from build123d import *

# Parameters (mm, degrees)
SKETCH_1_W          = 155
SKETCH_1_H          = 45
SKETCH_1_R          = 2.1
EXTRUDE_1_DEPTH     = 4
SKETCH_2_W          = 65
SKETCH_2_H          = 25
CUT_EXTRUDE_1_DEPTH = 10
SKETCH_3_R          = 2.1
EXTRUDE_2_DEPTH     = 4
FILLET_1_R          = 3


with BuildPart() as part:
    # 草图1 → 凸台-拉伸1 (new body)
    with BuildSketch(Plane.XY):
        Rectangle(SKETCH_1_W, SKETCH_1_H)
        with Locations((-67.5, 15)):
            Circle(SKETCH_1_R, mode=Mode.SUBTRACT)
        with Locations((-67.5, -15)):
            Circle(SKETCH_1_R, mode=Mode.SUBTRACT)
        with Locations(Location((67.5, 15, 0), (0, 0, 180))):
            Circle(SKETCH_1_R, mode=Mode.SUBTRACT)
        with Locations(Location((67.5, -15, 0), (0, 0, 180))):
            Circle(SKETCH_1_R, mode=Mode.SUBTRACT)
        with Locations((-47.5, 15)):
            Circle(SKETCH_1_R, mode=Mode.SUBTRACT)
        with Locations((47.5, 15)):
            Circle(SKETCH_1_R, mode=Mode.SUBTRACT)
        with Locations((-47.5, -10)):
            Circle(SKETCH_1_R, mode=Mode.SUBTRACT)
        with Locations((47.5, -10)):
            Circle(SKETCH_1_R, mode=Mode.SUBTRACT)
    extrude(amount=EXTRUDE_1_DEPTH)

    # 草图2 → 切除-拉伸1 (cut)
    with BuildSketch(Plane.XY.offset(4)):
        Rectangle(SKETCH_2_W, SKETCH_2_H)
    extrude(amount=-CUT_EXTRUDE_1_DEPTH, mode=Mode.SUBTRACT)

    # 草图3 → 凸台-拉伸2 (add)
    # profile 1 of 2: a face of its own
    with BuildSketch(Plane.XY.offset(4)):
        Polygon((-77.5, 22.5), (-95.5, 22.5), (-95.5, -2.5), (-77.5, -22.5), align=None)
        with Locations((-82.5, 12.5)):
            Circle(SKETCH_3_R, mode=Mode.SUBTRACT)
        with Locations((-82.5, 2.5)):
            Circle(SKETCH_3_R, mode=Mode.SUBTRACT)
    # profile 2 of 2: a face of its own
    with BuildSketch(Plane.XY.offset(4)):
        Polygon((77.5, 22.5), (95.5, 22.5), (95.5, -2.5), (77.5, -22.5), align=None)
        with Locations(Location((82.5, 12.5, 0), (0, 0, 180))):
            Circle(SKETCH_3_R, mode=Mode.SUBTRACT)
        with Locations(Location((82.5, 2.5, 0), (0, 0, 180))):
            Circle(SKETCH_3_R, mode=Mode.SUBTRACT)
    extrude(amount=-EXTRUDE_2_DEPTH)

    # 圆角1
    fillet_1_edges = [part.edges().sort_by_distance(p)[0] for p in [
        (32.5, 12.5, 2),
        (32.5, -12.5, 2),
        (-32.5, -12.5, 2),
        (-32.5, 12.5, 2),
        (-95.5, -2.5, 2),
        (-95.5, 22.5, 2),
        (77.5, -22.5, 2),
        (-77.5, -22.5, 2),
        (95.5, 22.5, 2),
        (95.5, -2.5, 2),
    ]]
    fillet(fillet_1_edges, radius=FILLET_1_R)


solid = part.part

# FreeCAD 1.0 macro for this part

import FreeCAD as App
import Part
import Sketcher
from FreeCAD import Vector


def edges_at(feature, points):
    """Names of the edges that pass closest to the given points."""
    edges = feature.Shape.Edges
    near = lambda p: min(range(len(edges)), key=lambda i: edges[i].distToShape(Part.Vertex(*p))[0])
    return sorted({f"Edge{near(p) + 1}" for p in points})

doc = App.newDocument("Part")
body = doc.addObject("PartDesign::Body", "Body")

sketch1 = body.newObject("Sketcher::SketchObject", "Sketch")
sketch1.AttachmentSupport = (doc.getObject("XY_Plane"), [""])
sketch1.MapMode = "FlatFace"
sketch1.addGeometry(Part.LineSegment(Vector(-77.5, 22.5, 0), Vector(-77.5, -22.5, 0)), False)
sketch1.addGeometry(Part.LineSegment(Vector(-77.5, -22.5, 0), Vector(77.5, -22.5, 0)), False)
sketch1.addGeometry(Part.LineSegment(Vector(77.5, -22.5, 0), Vector(77.5, 22.5, 0)), False)
sketch1.addGeometry(Part.LineSegment(Vector(77.5, 22.5, 0), Vector(-77.5, 22.5, 0)), False)
sketch1.addGeometry(Part.Circle(Vector(-67.5, -15, 0), Vector(0, 0, 1), 2.1), False)
sketch1.addGeometry(Part.Circle(Vector(-47.5, -10, 0), Vector(0, 0, 1), 2.1), False)
sketch1.addGeometry(Part.Circle(Vector(67.5, -15, 0), Vector(0, 0, 1), 2.1), False)
sketch1.addGeometry(Part.Circle(Vector(47.5, -10, 0), Vector(0, 0, 1), 2.1), False)
sketch1.addGeometry(Part.Circle(Vector(-67.5, 15, 0), Vector(0, 0, 1), 2.1), False)
sketch1.addGeometry(Part.Circle(Vector(-47.5, 15, 0), Vector(0, 0, 1), 2.1), False)
sketch1.addGeometry(Part.Circle(Vector(47.5, 15, 0), Vector(0, 0, 1), 2.1), False)
sketch1.addGeometry(Part.Circle(Vector(67.5, 15, 0), Vector(0, 0, 1), 2.1), False)
sketch1.addConstraint(Sketcher.Constraint("Coincident", 0, 2, 1, 1))
sketch1.addConstraint(Sketcher.Constraint("Coincident", 1, 2, 2, 1))
sketch1.addConstraint(Sketcher.Constraint("Coincident", 2, 2, 3, 1))
sketch1.addConstraint(Sketcher.Constraint("Coincident", 3, 2, 0, 1))
sketch1.addConstraint(Sketcher.Constraint("Vertical", 0))
sketch1.addConstraint(Sketcher.Constraint("Horizontal", 1))
sketch1.addConstraint(Sketcher.Constraint("Vertical", 2))
sketch1.addConstraint(Sketcher.Constraint("Horizontal", 3))
sketch1.addConstraint(Sketcher.Constraint("Equal", 4, 5))
sketch1.addConstraint(Sketcher.Constraint("Equal", 5, 6))
sketch1.addConstraint(Sketcher.Constraint("Equal", 6, 7))
sketch1.addConstraint(Sketcher.Constraint("Equal", 7, 8))
sketch1.addConstraint(Sketcher.Constraint("Equal", 8, 9))
sketch1.addConstraint(Sketcher.Constraint("Equal", 9, 10))
sketch1.addConstraint(Sketcher.Constraint("Equal", 10, 11))
sketch1.addConstraint(Sketcher.Constraint("Symmetric", 6, 3, 8, 3, -1, 1))
sketch1.addConstraint(Sketcher.Constraint("Symmetric", 4, 3, 11, 3, -1, 1))
sketch1.addConstraint(Sketcher.Constraint("Symmetric", 0, 2, 2, 2, -1, 1))
sketch1.addConstraint(Sketcher.Constraint("Symmetric", 4, 3, 6, 3, -2))
sketch1.addConstraint(Sketcher.Constraint("Symmetric", 5, 3, 7, 3, -2))
sketch1.addConstraint(Sketcher.Constraint("Symmetric", 9, 3, 10, 3, -2))
sketch1.addConstraint(Sketcher.Constraint("Horizontal", 8, 3, 9, 3))
sketch1.addConstraint(Sketcher.Constraint("Vertical", 5, 3, 9, 3))
sketch1.addConstraint(Sketcher.Constraint("Diameter", 4, 4.2))
sketch1.addConstraint(Sketcher.Constraint("DistanceX", 1, 1, 1, 2, 155.0))
sketch1.addConstraint(Sketcher.Constraint("DistanceY", 0, 2, 0, 1, 45.0))
sketch1.addConstraint(Sketcher.Constraint("DistanceY", 4, 3, -1, 1, 15.0))
sketch1.addConstraint(Sketcher.Constraint("DistanceY", 5, 3, -1, 1, 10.0))
sketch1.addConstraint(Sketcher.Constraint("DistanceX", 4, 3, 5, 3, 20.0))
sketch1.addConstraint(Sketcher.Constraint("DistanceX", 5, 3, 6, 3, 115.0))
pad1 = body.newObject("PartDesign::Pad", "Pad")
pad1.Profile = sketch1
pad1.Length = 4

sketch2 = body.newObject("Sketcher::SketchObject", "Sketch001")
sketch2.AttachmentSupport = (doc.getObject("XY_Plane"), [""])
sketch2.MapMode = "FlatFace"
sketch2.AttachmentOffset = App.Placement(Vector(0, 0, 4), App.Rotation())
sketch2.addGeometry(Part.LineSegment(Vector(-32, 12, 0), Vector(-32, -12, 0)), False)
sketch2.addGeometry(Part.LineSegment(Vector(-32, -12, 0), Vector(32, -12, 0)), False)
sketch2.addGeometry(Part.LineSegment(Vector(32, -12, 0), Vector(32, 12, 0)), False)
sketch2.addGeometry(Part.LineSegment(Vector(32, 12, 0), Vector(-32, 12, 0)), False)
sketch2.addConstraint(Sketcher.Constraint("Coincident", 0, 2, 1, 1))
sketch2.addConstraint(Sketcher.Constraint("Coincident", 1, 2, 2, 1))
sketch2.addConstraint(Sketcher.Constraint("Coincident", 2, 2, 3, 1))
sketch2.addConstraint(Sketcher.Constraint("Coincident", 3, 2, 0, 1))
sketch2.addConstraint(Sketcher.Constraint("Vertical", 0))
sketch2.addConstraint(Sketcher.Constraint("Horizontal", 1))
sketch2.addConstraint(Sketcher.Constraint("Vertical", 2))
sketch2.addConstraint(Sketcher.Constraint("Horizontal", 3))
sketch2.addConstraint(Sketcher.Constraint("Symmetric", 0, 2, 2, 2, -1, 1))
sketch2.addConstraint(Sketcher.Constraint("DistanceX", 1, 1, 1, 2, 65.0))
sketch2.addConstraint(Sketcher.Constraint("DistanceY", 0, 2, 0, 1, 25.0))
pocket1 = body.newObject("PartDesign::Pocket", "Pocket")
pocket1.Profile = sketch2
pocket1.Length = 10

sketch3 = body.newObject("Sketcher::SketchObject", "Sketch002")
sketch3.AttachmentSupport = (doc.getObject("XY_Plane"), [""])
sketch3.MapMode = "FlatFace"
sketch3.AttachmentOffset = App.Placement(Vector(0, 0, 4), App.Rotation())
sketch3.addGeometry(Part.LineSegment(Vector(-77.5, 22.5, 0), Vector(-95.5, 22.5, 0)), False)
sketch3.addGeometry(Part.LineSegment(Vector(-95.5, 22.5, 0), Vector(-95.5, -2.5, 0)), False)
sketch3.addGeometry(Part.LineSegment(Vector(-95.5, -2.5, 0), Vector(-77.5, -22.5, 0)), False)
sketch3.addGeometry(Part.LineSegment(Vector(-77.5, -22.5, 0), Vector(-77.5, 22.5, 0)), False)
sketch3.addGeometry(Part.Circle(Vector(-82.5, 2.5, 0), Vector(0, 0, 1), 2.1), False)
sketch3.addGeometry(Part.Circle(Vector(-82.5, 12.5, 0), Vector(0, 0, 1), 2.1), False)
sketch3.addGeometry(Part.LineSegment(Vector(95.5, 22.5, 0), Vector(77.5, 22.5, 0)), False)
sketch3.addGeometry(Part.LineSegment(Vector(77.5, 22.5, 0), Vector(77.5, -22.5, 0)), False)
sketch3.addGeometry(Part.LineSegment(Vector(77.5, -22.5, 0), Vector(95.5, -2.5, 0)), False)
sketch3.addGeometry(Part.LineSegment(Vector(95.5, -2.5, 0), Vector(95.5, 22.5, 0)), False)
sketch3.addGeometry(Part.Circle(Vector(82.5, 2.5, 0), Vector(0, 0, 1), 2.1), False)
sketch3.addGeometry(Part.Circle(Vector(82.5, 12.5, 0), Vector(0, 0, 1), 2.1), False)
sketch3.addConstraint(Sketcher.Constraint("Coincident", 0, 2, 1, 1))
sketch3.addConstraint(Sketcher.Constraint("Coincident", 1, 2, 2, 1))
sketch3.addConstraint(Sketcher.Constraint("Coincident", 2, 2, 3, 1))
sketch3.addConstraint(Sketcher.Constraint("Coincident", 3, 2, 0, 1))
sketch3.addConstraint(Sketcher.Constraint("Coincident", 6, 2, 7, 1))
sketch3.addConstraint(Sketcher.Constraint("Coincident", 7, 2, 8, 1))
sketch3.addConstraint(Sketcher.Constraint("Coincident", 8, 2, 9, 1))
sketch3.addConstraint(Sketcher.Constraint("Coincident", 9, 2, 6, 1))
sketch3.addConstraint(Sketcher.Constraint("Horizontal", 0))
sketch3.addConstraint(Sketcher.Constraint("Vertical", 1))
sketch3.addConstraint(Sketcher.Constraint("Vertical", 3))
sketch3.addConstraint(Sketcher.Constraint("Horizontal", 6))
sketch3.addConstraint(Sketcher.Constraint("Vertical", 7))
sketch3.addConstraint(Sketcher.Constraint("Vertical", 9))
sketch3.addConstraint(Sketcher.Constraint("Equal", 4, 5))
sketch3.addConstraint(Sketcher.Constraint("Equal", 5, 10))
sketch3.addConstraint(Sketcher.Constraint("Equal", 10, 11))
sketch3.addConstraint(Sketcher.Constraint("Symmetric", 2, 2, 6, 2, -1, 1))
sketch3.addConstraint(Sketcher.Constraint("Symmetric", 4, 3, 10, 3, -2))
sketch3.addConstraint(Sketcher.Constraint("Symmetric", 5, 3, 11, 3, -2))
sketch3.addConstraint(Sketcher.Constraint("Symmetric", 1, 2, 8, 2, -2))
sketch3.addConstraint(Sketcher.Constraint("Horizontal", 3, 2, 6, 2))
sketch3.addConstraint(Sketcher.Constraint("Horizontal", 2, 2, 7, 2))
sketch3.addConstraint(Sketcher.Constraint("Vertical", 4, 3, 5, 3))
sketch3.addConstraint(Sketcher.Constraint("Diameter", 4, 4.2))
sketch3.addConstraint(Sketcher.Constraint("DistanceX", 0, 2, 0, 1, 18.0))
sketch3.addConstraint(Sketcher.Constraint("DistanceY", 1, 2, 1, 1, 25.0))
sketch3.addConstraint(Sketcher.Constraint("DistanceY", 3, 1, 3, 2, 45.0))
sketch3.addConstraint(Sketcher.Constraint("DistanceY", 4, 3, 5, 3, 10.0))
sketch3.addConstraint(Sketcher.Constraint("DistanceX", 4, 3, 10, 3, 165.0))
sketch3.addConstraint(Sketcher.Constraint("DistanceX", 0, 2, 5, 3, 13.0))
sketch3.addConstraint(Sketcher.Constraint("DistanceY", 5, 3, 0, 2, 10.0))
pad2 = body.newObject("PartDesign::Pad", "Pad001")
pad2.Profile = sketch3
pad2.Length = 4
pad2.Reversed = True
doc.recompute()

fillet = body.newObject("PartDesign::Fillet", "Fillet")
fillet.Base = (pad2, edges_at(pad2, [
    (32.5, 12.5, 2),
    (32.5, -12.5, 2),
    (-32.5, -12.5, 2),
    (-32.5, 12.5, 2),
    (-95.5, -2.5, 2),
    (-95.5, 22.5, 2),
    (77.5, -22.5, 2),
    (-77.5, -22.5, 2),
    (95.5, 22.5, 2),
    (95.5, -2.5, 2),
]))
fillet.Radius = 3

doc.recompute()
